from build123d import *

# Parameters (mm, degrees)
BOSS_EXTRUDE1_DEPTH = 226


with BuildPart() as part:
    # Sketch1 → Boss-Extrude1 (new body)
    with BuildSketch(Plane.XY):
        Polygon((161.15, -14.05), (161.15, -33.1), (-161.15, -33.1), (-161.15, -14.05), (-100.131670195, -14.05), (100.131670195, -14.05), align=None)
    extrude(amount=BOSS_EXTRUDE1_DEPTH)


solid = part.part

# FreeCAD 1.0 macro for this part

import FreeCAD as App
import Part
import Sketcher

V = App.Vector
Q = App.Units.Quantity


def add_polygon(sketch, points):
    """Adds a closed chain of lines whose ends are joined by coincident constraints."""
    first, n = sketch.GeometryCount, len(points)
    for a, b in zip(points, points[1:] + points[:1]):
        sketch.addGeometry(Part.LineSegment(App.Vector(*a, 0), App.Vector(*b, 0)), False)
    for i in range(n):
        sketch.addConstraint(Sketcher.Constraint("Coincident", first + i, 2, first + (i + 1) % n, 1))

doc = App.newDocument("Part")
params = doc.addObject("Spreadsheet::Sheet", "Params")
for row, (alias, value) in enumerate([
    ("sketch1_width", "322.3 mm"),
    ("sketch1_height", "19.05 mm"),
    ("pad1_length", "226 mm"),
], start=1):
    params.set(f"A{row}", alias)
    params.set(f"B{row}", "=" + value)
    params.setAlias(f"B{row}", alias)

body = doc.addObject("PartDesign::Body", "Body")

# Sketch on XY plane
sketch1 = body.newObject("Sketcher::SketchObject", "Sketch")
sketch1.AttachmentSupport = (doc.getObject("XY_Plane"), [""])
sketch1.MapMode = "FlatFace"
add_polygon(sketch1, [(161, -33), (161, -14), (-161, -14), (-161, -33)])  # lines 0-3
sketch1.addConstraint([
    Sketcher.Constraint("Vertical", 0),
    Sketcher.Constraint("Horizontal", 1),
    Sketcher.Constraint("Vertical", 2),
    Sketcher.Constraint("Horizontal", 3),
    Sketcher.Constraint("DistanceX", 1, 2, 1, 1, Q("322.3 mm")),
    Sketcher.Constraint("DistanceY", 0, 1, 0, 2, Q("19.05 mm")),
    Sketcher.Constraint("DistanceY", 2, 2, -1, 1, Q("33.1 mm")),
    Sketcher.Constraint("DistanceX", -1, 1, 0, 2, Q("161.15 mm")),
])
sketch1.setExpression("Constraints[8]", "Params.sketch1_width")
sketch1.setExpression("Constraints[9]", "Params.sketch1_height")
pad1 = body.newObject("PartDesign::Pad", "Pad")
pad1.Profile = sketch1
pad1.setExpression("Length", "Params.pad1_length")

doc.recompute()
